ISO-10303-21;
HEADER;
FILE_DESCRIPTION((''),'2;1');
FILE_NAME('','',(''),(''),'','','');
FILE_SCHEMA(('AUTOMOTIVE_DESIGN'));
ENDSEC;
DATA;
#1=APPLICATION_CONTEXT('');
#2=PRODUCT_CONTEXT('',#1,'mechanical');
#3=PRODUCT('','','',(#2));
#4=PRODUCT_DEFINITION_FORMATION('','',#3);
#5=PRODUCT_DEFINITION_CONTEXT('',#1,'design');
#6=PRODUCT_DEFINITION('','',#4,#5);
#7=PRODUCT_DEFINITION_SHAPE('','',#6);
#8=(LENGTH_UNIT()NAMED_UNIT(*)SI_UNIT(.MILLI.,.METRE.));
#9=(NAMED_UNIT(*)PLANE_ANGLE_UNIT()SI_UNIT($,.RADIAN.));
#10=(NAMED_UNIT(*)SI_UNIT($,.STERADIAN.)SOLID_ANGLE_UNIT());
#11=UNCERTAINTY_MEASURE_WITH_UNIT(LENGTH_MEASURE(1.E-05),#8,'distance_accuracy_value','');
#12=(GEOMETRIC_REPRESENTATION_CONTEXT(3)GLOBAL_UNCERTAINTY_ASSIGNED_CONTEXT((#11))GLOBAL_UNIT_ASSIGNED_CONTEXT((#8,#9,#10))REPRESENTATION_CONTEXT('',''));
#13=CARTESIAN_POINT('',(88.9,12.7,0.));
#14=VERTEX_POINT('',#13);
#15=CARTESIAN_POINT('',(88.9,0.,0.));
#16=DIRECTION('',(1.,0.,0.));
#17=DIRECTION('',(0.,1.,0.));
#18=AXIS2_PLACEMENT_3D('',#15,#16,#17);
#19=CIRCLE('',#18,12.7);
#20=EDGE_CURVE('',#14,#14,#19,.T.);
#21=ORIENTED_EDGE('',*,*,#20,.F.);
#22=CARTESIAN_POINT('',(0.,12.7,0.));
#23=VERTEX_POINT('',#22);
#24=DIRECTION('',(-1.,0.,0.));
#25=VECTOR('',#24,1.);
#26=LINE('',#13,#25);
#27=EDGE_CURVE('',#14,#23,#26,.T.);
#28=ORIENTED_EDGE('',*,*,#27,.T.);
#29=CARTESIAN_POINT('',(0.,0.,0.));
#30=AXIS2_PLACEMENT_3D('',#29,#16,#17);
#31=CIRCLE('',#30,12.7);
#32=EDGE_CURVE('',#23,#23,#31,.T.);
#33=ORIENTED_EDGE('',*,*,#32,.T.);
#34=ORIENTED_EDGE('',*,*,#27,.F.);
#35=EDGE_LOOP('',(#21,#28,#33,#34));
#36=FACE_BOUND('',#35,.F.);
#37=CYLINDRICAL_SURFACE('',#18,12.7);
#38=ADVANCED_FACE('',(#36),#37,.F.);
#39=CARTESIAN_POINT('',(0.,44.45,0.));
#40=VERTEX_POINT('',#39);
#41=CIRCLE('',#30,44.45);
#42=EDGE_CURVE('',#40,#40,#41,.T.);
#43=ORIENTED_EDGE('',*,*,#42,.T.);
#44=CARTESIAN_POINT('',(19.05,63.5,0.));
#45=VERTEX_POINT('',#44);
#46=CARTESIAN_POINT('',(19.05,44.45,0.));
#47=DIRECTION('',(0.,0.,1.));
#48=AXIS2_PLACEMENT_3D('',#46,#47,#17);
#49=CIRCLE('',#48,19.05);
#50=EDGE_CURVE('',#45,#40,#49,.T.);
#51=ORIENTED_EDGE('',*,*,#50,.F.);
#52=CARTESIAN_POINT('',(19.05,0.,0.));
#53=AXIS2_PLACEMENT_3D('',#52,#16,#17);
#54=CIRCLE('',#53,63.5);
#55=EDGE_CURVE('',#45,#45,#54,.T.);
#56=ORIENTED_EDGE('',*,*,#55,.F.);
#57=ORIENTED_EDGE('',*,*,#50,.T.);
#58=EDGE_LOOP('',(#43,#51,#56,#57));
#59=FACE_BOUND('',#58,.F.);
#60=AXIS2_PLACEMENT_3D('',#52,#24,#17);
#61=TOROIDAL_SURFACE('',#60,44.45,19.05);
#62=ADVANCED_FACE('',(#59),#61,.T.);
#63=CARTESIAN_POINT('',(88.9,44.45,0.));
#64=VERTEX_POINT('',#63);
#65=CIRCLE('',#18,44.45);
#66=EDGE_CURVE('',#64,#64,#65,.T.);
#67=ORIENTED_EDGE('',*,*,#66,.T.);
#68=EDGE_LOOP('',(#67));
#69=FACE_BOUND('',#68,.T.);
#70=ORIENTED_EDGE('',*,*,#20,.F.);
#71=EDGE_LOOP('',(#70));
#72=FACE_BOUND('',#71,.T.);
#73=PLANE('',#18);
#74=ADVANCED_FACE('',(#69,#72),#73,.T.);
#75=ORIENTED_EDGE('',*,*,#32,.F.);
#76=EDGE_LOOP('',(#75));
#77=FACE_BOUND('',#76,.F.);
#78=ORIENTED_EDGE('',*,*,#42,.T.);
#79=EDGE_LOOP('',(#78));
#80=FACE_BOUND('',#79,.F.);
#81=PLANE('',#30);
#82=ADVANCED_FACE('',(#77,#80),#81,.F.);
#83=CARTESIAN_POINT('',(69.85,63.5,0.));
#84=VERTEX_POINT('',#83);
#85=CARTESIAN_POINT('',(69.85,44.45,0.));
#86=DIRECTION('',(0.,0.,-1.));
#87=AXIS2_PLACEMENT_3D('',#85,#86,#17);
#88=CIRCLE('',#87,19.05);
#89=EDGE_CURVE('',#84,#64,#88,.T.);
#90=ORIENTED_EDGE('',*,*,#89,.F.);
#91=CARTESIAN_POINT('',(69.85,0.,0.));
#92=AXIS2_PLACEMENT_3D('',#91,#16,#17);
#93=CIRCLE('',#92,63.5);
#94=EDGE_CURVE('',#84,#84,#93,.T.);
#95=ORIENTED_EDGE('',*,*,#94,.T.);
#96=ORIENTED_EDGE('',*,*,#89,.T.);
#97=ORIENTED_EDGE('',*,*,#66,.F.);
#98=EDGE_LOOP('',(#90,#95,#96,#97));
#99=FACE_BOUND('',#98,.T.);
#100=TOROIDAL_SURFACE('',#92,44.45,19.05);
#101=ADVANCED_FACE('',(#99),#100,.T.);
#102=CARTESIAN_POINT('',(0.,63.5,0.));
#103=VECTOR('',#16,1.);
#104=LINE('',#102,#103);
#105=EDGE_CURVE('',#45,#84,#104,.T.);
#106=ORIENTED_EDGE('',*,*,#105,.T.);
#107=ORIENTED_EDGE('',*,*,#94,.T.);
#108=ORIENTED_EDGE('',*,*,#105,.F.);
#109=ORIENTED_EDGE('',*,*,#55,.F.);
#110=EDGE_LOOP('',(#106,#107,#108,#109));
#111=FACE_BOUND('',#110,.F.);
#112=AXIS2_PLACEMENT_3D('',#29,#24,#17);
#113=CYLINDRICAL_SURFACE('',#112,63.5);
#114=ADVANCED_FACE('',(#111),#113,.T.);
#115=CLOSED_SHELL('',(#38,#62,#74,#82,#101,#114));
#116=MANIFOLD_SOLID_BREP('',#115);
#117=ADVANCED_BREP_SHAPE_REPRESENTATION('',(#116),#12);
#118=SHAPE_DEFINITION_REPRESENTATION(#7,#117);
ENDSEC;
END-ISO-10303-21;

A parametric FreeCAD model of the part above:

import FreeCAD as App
import Part
import Sketcher
Q = App.Units.Quantity

doc = App.newDocument("Part")
body = doc.addObject("PartDesign::Body", "Body")

sketch1 = body.newObject("Sketcher::SketchObject", "Sketch")
sketch1.AttachmentSupport = (doc.getObject("YZ_Plane"), [""])
sketch1.MapMode = "FlatFace"
sketch1.addGeometry(Part.Circle(App.Vector(0, 0, 0), App.Vector(0, 0, 1), 63.5), False)
sketch1.addConstraint([
    Sketcher.Constraint("Coincident", 0, 3, -1, 1),
    Sketcher.Constraint("Diameter", 0, Q("5 in")),
])
pad1 = body.newObject("PartDesign::Pad", "Pad")
pad1.Profile = sketch1
pad1.Length = Q("3.5 in")
doc.recompute()

fillet = body.newObject("PartDesign::Fillet", "Fillet")
fillet.Base = (pad1, ["Edge1"])
fillet.UseAllEdges = True
fillet.Radius = Q("0.75 in")

sketch2 = body.newObject("Sketcher::SketchObject", "Sketch001")
sketch2.AttachmentSupport = (doc.getObject("YZ_Plane"), [""])
sketch2.MapMode = "FlatFace"
sketch2.AttachmentOffset = App.Placement(App.Vector(0, 0, 3.5 * 25.4), App.Rotation())
sketch2.addGeometry(Part.Circle(App.Vector(0, 0, 0), App.Vector(0, 0, 1), 12.7), False)
sketch2.addConstraint([
    Sketcher.Constraint("Coincident", 0, 3, -1, 1),
    Sketcher.Constraint("Diameter", 0, Q("1 in")),
])
pocket1 = body.newObject("PartDesign::Pocket", "Pocket")
pocket1.Profile = sketch2
pocket1.Type = "ThroughAll"

doc.recompute()
